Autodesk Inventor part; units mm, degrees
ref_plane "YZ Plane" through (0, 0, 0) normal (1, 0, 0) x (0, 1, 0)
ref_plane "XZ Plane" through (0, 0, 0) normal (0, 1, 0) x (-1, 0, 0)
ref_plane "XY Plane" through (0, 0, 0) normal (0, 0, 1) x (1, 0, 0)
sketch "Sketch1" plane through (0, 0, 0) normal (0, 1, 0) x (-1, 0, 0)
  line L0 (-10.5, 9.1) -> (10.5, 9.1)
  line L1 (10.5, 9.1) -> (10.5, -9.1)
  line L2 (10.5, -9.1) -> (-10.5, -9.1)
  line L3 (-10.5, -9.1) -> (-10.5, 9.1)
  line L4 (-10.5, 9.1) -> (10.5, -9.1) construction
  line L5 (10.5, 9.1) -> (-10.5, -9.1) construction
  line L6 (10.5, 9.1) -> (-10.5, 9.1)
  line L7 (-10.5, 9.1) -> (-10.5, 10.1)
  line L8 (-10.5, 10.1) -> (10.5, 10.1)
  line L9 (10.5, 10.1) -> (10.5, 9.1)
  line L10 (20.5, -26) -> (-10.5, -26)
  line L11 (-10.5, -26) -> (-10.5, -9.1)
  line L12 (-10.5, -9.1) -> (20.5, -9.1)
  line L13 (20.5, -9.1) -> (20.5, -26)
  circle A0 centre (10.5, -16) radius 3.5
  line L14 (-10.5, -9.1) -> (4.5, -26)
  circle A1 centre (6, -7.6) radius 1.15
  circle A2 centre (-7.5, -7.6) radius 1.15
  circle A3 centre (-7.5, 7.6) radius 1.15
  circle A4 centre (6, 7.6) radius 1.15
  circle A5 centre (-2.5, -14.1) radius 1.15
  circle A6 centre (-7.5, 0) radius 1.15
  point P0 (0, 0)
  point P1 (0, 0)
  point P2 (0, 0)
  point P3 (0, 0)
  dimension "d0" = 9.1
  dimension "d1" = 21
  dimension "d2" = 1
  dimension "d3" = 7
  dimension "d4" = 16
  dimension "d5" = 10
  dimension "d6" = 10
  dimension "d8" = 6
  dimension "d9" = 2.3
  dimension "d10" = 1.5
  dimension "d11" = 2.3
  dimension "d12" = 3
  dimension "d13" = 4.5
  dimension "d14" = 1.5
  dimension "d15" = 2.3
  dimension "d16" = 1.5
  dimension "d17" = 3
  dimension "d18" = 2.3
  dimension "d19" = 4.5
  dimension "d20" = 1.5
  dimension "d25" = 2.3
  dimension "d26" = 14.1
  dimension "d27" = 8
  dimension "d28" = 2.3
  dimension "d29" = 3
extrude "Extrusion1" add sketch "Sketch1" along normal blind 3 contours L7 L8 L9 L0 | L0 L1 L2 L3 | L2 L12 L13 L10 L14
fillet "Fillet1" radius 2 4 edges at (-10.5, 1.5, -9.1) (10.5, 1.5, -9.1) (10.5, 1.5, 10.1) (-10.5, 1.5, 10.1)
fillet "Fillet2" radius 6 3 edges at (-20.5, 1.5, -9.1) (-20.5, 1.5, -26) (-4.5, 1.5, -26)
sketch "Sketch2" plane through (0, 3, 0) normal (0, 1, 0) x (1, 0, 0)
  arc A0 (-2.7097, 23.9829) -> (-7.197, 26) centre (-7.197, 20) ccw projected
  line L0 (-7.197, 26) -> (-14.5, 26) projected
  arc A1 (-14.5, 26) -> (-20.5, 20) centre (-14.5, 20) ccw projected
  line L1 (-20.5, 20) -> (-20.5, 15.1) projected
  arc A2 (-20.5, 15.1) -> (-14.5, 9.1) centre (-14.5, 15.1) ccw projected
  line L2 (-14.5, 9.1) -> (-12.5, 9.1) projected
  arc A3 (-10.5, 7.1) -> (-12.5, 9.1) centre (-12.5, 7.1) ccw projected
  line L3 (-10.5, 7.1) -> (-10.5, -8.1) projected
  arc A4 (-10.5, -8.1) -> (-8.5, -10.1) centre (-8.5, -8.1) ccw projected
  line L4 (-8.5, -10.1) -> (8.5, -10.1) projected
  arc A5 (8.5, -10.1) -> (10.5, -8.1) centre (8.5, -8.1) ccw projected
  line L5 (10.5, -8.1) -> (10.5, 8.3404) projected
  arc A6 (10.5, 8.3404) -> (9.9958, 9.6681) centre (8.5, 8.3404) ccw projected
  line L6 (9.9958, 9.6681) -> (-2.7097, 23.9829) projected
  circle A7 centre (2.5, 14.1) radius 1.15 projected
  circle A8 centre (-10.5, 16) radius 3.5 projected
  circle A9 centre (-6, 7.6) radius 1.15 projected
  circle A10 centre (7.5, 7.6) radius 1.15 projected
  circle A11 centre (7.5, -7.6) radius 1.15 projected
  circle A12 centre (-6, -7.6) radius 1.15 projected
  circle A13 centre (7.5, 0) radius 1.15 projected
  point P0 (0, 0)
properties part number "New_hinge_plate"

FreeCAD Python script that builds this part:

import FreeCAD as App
import Part
import Sketcher

V = App.Vector


def edges_at(feature, points):
    """Names of the edges that pass closest to the given points."""
    edges = feature.Shape.Edges
    near = lambda p: min(range(len(edges)), key=lambda i: edges[i].distToShape(Part.Vertex(*p))[0])
    return sorted({f"Edge{near(p) + 1}" for p in points})


def add_polygon(sketch, points):
    """Adds a closed chain of lines whose ends are joined by coincident constraints."""
    first, n = sketch.GeometryCount, len(points)
    for a, b in zip(points, points[1:] + points[:1]):
        sketch.addGeometry(Part.LineSegment(App.Vector(*a, 0), App.Vector(*b, 0)), False)
    for i in range(n):
        sketch.addConstraint(Sketcher.Constraint("Coincident", first + i, 2, first + (i + 1) % n, 1))

doc = App.newDocument("Part")
body = doc.addObject("PartDesign::Body", "Body")

# Sketch on XZ plane
sketch1 = doc.addObject("Sketcher::SketchObject", "Sketch")
body.addObject(sketch1)
sketch1.AttachmentSupport = (doc.XZ_Plane, [""])
sketch1.MapMode = "FlatFace"
add_polygon(sketch1, [(10.5, 10.1), (10.5, -9.1), (-4.5, -26), (-20.5, -26), (-20.5, -9.1), (-10.5, -9.1), (-10.5, 10.1)])  # lines 0-6
sketch1.addGeometry(Part.Circle(V(-6, 7.6, 0), V(0, 0, 1), 1.1), False)  # 7
sketch1.addGeometry(Part.Circle(V(7.5, -7.6, 0), V(0, 0, 1), 1.1), False)  # 8
sketch1.addGeometry(Part.Circle(V(7.5, 0, 0), V(0, 0, 1), 1.1), False)  # 9
sketch1.addGeometry(Part.Circle(V(7.5, 7.6, 0), V(0, 0, 1), 1.1), False)  # 10
sketch1.addGeometry(Part.Circle(V(-6, -7.6, 0), V(0, 0, 1), 1.1), False)  # 11
sketch1.addGeometry(Part.Circle(V(-10.5, -16, 0), V(0, 0, 1), 3.5), False)  # 12
sketch1.addGeometry(Part.Circle(V(2.5, -14.1, 0), V(0, 0, 1), 1.1), False)  # 13
sketch1.addConstraint(Sketcher.Constraint("Vertical", 0))
sketch1.addConstraint(Sketcher.Constraint("Horizontal", 2))
sketch1.addConstraint(Sketcher.Constraint("Vertical", 3))
sketch1.addConstraint(Sketcher.Constraint("Horizontal", 4))
sketch1.addConstraint(Sketcher.Constraint("Vertical", 5))
sketch1.addConstraint(Sketcher.Constraint("Horizontal", 6))
sketch1.addConstraint(Sketcher.Constraint("Equal", 7, 8))
sketch1.addConstraint(Sketcher.Constraint("Equal", 8, 9))
sketch1.addConstraint(Sketcher.Constraint("Equal", 9, 10))
sketch1.addConstraint(Sketcher.Constraint("Equal", 10, 11))
sketch1.addConstraint(Sketcher.Constraint("Equal", 11, 13))
sketch1.addConstraint(Sketcher.Constraint("Symmetric", 0, 2, 4, 2, -2))
sketch1.addConstraint(Sketcher.Constraint("Symmetric", 8, 3, 10, 3, -1))
sketch1.addConstraint(Sketcher.Constraint("Symmetric", 7, 3, 11, 3, -1))
sketch1.addConstraint(Sketcher.Constraint("PointOnObject", 9, 3, -1))
sketch1.addConstraint(Sketcher.Constraint("Horizontal", 7, 3, 10, 3))
sketch1.addConstraint(Sketcher.Constraint("Vertical", 8, 3, 9, 3))
sketch1.addConstraint(Sketcher.Constraint("Vertical", 12, 3, 4, 2))
sketch1.addConstraint(Sketcher.Constraint("Diameter", 12, 7.0))
sketch1.addConstraint(Sketcher.Constraint("Diameter", 7, 2.3))
sketch1.addConstraint(Sketcher.Constraint("DistanceX", 2, 2, 2, 1, 16.0))
sketch1.addConstraint(Sketcher.Constraint("DistanceX", 4, 1, 4, 2, 10.0))
sketch1.addConstraint(Sketcher.Constraint("DistanceX", 6, 1, 6, 2, 21.0))
sketch1.addConstraint(Sketcher.Constraint("DistanceX", 7, 3, -1, 1, 6.0))
sketch1.addConstraint(Sketcher.Constraint("DistanceY", 12, 3, -1, 1, 16.0))
sketch1.addConstraint(Sketcher.Constraint("DistanceX", 8, 3, 0, 2, 3.0))
sketch1.addConstraint(Sketcher.Constraint("DistanceX", 13, 3, 0, 2, 8.0))
sketch1.addConstraint(Sketcher.Constraint("DistanceY", 1, 2, 12, 3, 10.0))
sketch1.addConstraint(Sketcher.Constraint("DistanceY", 13, 3, -1, 1, 14.1))
sketch1.addConstraint(Sketcher.Constraint("DistanceY", 0, 2, -1, 1, 9.1))
sketch1.addConstraint(Sketcher.Constraint("DistanceY", 0, 2, 8, 3, 1.5))
sketch1.addConstraint(Sketcher.Constraint("DistanceY", 0, 2, 0, 1, 19.2))
pad1 = doc.addObject("PartDesign::Pad", "Pad")
body.addObject(pad1)
pad1.Profile = sketch1
pad1.Length = 3
pad1.Reversed = True
doc.recompute()

fillet = doc.addObject("PartDesign::Fillet", "Fillet")
body.addObject(fillet)
fillet.Base = (pad1, edges_at(pad1, [
    (-10.5, 1.5, -9.1),
    (10.5, 1.5, -9.1),
    (10.5, 1.5, 10.1),
    (-10.5, 1.5, 10.1),
]))
fillet.Radius = 2
doc.recompute()

fillet2 = doc.addObject("PartDesign::Fillet", "Fillet001")
body.addObject(fillet2)
fillet2.Base = (fillet, edges_at(fillet, [(-20.5, 1.5, -9.1), (-20.5, 1.5, -26), (-4.5, 1.5, -26)]))
fillet2.Radius = 6

doc.recompute()
